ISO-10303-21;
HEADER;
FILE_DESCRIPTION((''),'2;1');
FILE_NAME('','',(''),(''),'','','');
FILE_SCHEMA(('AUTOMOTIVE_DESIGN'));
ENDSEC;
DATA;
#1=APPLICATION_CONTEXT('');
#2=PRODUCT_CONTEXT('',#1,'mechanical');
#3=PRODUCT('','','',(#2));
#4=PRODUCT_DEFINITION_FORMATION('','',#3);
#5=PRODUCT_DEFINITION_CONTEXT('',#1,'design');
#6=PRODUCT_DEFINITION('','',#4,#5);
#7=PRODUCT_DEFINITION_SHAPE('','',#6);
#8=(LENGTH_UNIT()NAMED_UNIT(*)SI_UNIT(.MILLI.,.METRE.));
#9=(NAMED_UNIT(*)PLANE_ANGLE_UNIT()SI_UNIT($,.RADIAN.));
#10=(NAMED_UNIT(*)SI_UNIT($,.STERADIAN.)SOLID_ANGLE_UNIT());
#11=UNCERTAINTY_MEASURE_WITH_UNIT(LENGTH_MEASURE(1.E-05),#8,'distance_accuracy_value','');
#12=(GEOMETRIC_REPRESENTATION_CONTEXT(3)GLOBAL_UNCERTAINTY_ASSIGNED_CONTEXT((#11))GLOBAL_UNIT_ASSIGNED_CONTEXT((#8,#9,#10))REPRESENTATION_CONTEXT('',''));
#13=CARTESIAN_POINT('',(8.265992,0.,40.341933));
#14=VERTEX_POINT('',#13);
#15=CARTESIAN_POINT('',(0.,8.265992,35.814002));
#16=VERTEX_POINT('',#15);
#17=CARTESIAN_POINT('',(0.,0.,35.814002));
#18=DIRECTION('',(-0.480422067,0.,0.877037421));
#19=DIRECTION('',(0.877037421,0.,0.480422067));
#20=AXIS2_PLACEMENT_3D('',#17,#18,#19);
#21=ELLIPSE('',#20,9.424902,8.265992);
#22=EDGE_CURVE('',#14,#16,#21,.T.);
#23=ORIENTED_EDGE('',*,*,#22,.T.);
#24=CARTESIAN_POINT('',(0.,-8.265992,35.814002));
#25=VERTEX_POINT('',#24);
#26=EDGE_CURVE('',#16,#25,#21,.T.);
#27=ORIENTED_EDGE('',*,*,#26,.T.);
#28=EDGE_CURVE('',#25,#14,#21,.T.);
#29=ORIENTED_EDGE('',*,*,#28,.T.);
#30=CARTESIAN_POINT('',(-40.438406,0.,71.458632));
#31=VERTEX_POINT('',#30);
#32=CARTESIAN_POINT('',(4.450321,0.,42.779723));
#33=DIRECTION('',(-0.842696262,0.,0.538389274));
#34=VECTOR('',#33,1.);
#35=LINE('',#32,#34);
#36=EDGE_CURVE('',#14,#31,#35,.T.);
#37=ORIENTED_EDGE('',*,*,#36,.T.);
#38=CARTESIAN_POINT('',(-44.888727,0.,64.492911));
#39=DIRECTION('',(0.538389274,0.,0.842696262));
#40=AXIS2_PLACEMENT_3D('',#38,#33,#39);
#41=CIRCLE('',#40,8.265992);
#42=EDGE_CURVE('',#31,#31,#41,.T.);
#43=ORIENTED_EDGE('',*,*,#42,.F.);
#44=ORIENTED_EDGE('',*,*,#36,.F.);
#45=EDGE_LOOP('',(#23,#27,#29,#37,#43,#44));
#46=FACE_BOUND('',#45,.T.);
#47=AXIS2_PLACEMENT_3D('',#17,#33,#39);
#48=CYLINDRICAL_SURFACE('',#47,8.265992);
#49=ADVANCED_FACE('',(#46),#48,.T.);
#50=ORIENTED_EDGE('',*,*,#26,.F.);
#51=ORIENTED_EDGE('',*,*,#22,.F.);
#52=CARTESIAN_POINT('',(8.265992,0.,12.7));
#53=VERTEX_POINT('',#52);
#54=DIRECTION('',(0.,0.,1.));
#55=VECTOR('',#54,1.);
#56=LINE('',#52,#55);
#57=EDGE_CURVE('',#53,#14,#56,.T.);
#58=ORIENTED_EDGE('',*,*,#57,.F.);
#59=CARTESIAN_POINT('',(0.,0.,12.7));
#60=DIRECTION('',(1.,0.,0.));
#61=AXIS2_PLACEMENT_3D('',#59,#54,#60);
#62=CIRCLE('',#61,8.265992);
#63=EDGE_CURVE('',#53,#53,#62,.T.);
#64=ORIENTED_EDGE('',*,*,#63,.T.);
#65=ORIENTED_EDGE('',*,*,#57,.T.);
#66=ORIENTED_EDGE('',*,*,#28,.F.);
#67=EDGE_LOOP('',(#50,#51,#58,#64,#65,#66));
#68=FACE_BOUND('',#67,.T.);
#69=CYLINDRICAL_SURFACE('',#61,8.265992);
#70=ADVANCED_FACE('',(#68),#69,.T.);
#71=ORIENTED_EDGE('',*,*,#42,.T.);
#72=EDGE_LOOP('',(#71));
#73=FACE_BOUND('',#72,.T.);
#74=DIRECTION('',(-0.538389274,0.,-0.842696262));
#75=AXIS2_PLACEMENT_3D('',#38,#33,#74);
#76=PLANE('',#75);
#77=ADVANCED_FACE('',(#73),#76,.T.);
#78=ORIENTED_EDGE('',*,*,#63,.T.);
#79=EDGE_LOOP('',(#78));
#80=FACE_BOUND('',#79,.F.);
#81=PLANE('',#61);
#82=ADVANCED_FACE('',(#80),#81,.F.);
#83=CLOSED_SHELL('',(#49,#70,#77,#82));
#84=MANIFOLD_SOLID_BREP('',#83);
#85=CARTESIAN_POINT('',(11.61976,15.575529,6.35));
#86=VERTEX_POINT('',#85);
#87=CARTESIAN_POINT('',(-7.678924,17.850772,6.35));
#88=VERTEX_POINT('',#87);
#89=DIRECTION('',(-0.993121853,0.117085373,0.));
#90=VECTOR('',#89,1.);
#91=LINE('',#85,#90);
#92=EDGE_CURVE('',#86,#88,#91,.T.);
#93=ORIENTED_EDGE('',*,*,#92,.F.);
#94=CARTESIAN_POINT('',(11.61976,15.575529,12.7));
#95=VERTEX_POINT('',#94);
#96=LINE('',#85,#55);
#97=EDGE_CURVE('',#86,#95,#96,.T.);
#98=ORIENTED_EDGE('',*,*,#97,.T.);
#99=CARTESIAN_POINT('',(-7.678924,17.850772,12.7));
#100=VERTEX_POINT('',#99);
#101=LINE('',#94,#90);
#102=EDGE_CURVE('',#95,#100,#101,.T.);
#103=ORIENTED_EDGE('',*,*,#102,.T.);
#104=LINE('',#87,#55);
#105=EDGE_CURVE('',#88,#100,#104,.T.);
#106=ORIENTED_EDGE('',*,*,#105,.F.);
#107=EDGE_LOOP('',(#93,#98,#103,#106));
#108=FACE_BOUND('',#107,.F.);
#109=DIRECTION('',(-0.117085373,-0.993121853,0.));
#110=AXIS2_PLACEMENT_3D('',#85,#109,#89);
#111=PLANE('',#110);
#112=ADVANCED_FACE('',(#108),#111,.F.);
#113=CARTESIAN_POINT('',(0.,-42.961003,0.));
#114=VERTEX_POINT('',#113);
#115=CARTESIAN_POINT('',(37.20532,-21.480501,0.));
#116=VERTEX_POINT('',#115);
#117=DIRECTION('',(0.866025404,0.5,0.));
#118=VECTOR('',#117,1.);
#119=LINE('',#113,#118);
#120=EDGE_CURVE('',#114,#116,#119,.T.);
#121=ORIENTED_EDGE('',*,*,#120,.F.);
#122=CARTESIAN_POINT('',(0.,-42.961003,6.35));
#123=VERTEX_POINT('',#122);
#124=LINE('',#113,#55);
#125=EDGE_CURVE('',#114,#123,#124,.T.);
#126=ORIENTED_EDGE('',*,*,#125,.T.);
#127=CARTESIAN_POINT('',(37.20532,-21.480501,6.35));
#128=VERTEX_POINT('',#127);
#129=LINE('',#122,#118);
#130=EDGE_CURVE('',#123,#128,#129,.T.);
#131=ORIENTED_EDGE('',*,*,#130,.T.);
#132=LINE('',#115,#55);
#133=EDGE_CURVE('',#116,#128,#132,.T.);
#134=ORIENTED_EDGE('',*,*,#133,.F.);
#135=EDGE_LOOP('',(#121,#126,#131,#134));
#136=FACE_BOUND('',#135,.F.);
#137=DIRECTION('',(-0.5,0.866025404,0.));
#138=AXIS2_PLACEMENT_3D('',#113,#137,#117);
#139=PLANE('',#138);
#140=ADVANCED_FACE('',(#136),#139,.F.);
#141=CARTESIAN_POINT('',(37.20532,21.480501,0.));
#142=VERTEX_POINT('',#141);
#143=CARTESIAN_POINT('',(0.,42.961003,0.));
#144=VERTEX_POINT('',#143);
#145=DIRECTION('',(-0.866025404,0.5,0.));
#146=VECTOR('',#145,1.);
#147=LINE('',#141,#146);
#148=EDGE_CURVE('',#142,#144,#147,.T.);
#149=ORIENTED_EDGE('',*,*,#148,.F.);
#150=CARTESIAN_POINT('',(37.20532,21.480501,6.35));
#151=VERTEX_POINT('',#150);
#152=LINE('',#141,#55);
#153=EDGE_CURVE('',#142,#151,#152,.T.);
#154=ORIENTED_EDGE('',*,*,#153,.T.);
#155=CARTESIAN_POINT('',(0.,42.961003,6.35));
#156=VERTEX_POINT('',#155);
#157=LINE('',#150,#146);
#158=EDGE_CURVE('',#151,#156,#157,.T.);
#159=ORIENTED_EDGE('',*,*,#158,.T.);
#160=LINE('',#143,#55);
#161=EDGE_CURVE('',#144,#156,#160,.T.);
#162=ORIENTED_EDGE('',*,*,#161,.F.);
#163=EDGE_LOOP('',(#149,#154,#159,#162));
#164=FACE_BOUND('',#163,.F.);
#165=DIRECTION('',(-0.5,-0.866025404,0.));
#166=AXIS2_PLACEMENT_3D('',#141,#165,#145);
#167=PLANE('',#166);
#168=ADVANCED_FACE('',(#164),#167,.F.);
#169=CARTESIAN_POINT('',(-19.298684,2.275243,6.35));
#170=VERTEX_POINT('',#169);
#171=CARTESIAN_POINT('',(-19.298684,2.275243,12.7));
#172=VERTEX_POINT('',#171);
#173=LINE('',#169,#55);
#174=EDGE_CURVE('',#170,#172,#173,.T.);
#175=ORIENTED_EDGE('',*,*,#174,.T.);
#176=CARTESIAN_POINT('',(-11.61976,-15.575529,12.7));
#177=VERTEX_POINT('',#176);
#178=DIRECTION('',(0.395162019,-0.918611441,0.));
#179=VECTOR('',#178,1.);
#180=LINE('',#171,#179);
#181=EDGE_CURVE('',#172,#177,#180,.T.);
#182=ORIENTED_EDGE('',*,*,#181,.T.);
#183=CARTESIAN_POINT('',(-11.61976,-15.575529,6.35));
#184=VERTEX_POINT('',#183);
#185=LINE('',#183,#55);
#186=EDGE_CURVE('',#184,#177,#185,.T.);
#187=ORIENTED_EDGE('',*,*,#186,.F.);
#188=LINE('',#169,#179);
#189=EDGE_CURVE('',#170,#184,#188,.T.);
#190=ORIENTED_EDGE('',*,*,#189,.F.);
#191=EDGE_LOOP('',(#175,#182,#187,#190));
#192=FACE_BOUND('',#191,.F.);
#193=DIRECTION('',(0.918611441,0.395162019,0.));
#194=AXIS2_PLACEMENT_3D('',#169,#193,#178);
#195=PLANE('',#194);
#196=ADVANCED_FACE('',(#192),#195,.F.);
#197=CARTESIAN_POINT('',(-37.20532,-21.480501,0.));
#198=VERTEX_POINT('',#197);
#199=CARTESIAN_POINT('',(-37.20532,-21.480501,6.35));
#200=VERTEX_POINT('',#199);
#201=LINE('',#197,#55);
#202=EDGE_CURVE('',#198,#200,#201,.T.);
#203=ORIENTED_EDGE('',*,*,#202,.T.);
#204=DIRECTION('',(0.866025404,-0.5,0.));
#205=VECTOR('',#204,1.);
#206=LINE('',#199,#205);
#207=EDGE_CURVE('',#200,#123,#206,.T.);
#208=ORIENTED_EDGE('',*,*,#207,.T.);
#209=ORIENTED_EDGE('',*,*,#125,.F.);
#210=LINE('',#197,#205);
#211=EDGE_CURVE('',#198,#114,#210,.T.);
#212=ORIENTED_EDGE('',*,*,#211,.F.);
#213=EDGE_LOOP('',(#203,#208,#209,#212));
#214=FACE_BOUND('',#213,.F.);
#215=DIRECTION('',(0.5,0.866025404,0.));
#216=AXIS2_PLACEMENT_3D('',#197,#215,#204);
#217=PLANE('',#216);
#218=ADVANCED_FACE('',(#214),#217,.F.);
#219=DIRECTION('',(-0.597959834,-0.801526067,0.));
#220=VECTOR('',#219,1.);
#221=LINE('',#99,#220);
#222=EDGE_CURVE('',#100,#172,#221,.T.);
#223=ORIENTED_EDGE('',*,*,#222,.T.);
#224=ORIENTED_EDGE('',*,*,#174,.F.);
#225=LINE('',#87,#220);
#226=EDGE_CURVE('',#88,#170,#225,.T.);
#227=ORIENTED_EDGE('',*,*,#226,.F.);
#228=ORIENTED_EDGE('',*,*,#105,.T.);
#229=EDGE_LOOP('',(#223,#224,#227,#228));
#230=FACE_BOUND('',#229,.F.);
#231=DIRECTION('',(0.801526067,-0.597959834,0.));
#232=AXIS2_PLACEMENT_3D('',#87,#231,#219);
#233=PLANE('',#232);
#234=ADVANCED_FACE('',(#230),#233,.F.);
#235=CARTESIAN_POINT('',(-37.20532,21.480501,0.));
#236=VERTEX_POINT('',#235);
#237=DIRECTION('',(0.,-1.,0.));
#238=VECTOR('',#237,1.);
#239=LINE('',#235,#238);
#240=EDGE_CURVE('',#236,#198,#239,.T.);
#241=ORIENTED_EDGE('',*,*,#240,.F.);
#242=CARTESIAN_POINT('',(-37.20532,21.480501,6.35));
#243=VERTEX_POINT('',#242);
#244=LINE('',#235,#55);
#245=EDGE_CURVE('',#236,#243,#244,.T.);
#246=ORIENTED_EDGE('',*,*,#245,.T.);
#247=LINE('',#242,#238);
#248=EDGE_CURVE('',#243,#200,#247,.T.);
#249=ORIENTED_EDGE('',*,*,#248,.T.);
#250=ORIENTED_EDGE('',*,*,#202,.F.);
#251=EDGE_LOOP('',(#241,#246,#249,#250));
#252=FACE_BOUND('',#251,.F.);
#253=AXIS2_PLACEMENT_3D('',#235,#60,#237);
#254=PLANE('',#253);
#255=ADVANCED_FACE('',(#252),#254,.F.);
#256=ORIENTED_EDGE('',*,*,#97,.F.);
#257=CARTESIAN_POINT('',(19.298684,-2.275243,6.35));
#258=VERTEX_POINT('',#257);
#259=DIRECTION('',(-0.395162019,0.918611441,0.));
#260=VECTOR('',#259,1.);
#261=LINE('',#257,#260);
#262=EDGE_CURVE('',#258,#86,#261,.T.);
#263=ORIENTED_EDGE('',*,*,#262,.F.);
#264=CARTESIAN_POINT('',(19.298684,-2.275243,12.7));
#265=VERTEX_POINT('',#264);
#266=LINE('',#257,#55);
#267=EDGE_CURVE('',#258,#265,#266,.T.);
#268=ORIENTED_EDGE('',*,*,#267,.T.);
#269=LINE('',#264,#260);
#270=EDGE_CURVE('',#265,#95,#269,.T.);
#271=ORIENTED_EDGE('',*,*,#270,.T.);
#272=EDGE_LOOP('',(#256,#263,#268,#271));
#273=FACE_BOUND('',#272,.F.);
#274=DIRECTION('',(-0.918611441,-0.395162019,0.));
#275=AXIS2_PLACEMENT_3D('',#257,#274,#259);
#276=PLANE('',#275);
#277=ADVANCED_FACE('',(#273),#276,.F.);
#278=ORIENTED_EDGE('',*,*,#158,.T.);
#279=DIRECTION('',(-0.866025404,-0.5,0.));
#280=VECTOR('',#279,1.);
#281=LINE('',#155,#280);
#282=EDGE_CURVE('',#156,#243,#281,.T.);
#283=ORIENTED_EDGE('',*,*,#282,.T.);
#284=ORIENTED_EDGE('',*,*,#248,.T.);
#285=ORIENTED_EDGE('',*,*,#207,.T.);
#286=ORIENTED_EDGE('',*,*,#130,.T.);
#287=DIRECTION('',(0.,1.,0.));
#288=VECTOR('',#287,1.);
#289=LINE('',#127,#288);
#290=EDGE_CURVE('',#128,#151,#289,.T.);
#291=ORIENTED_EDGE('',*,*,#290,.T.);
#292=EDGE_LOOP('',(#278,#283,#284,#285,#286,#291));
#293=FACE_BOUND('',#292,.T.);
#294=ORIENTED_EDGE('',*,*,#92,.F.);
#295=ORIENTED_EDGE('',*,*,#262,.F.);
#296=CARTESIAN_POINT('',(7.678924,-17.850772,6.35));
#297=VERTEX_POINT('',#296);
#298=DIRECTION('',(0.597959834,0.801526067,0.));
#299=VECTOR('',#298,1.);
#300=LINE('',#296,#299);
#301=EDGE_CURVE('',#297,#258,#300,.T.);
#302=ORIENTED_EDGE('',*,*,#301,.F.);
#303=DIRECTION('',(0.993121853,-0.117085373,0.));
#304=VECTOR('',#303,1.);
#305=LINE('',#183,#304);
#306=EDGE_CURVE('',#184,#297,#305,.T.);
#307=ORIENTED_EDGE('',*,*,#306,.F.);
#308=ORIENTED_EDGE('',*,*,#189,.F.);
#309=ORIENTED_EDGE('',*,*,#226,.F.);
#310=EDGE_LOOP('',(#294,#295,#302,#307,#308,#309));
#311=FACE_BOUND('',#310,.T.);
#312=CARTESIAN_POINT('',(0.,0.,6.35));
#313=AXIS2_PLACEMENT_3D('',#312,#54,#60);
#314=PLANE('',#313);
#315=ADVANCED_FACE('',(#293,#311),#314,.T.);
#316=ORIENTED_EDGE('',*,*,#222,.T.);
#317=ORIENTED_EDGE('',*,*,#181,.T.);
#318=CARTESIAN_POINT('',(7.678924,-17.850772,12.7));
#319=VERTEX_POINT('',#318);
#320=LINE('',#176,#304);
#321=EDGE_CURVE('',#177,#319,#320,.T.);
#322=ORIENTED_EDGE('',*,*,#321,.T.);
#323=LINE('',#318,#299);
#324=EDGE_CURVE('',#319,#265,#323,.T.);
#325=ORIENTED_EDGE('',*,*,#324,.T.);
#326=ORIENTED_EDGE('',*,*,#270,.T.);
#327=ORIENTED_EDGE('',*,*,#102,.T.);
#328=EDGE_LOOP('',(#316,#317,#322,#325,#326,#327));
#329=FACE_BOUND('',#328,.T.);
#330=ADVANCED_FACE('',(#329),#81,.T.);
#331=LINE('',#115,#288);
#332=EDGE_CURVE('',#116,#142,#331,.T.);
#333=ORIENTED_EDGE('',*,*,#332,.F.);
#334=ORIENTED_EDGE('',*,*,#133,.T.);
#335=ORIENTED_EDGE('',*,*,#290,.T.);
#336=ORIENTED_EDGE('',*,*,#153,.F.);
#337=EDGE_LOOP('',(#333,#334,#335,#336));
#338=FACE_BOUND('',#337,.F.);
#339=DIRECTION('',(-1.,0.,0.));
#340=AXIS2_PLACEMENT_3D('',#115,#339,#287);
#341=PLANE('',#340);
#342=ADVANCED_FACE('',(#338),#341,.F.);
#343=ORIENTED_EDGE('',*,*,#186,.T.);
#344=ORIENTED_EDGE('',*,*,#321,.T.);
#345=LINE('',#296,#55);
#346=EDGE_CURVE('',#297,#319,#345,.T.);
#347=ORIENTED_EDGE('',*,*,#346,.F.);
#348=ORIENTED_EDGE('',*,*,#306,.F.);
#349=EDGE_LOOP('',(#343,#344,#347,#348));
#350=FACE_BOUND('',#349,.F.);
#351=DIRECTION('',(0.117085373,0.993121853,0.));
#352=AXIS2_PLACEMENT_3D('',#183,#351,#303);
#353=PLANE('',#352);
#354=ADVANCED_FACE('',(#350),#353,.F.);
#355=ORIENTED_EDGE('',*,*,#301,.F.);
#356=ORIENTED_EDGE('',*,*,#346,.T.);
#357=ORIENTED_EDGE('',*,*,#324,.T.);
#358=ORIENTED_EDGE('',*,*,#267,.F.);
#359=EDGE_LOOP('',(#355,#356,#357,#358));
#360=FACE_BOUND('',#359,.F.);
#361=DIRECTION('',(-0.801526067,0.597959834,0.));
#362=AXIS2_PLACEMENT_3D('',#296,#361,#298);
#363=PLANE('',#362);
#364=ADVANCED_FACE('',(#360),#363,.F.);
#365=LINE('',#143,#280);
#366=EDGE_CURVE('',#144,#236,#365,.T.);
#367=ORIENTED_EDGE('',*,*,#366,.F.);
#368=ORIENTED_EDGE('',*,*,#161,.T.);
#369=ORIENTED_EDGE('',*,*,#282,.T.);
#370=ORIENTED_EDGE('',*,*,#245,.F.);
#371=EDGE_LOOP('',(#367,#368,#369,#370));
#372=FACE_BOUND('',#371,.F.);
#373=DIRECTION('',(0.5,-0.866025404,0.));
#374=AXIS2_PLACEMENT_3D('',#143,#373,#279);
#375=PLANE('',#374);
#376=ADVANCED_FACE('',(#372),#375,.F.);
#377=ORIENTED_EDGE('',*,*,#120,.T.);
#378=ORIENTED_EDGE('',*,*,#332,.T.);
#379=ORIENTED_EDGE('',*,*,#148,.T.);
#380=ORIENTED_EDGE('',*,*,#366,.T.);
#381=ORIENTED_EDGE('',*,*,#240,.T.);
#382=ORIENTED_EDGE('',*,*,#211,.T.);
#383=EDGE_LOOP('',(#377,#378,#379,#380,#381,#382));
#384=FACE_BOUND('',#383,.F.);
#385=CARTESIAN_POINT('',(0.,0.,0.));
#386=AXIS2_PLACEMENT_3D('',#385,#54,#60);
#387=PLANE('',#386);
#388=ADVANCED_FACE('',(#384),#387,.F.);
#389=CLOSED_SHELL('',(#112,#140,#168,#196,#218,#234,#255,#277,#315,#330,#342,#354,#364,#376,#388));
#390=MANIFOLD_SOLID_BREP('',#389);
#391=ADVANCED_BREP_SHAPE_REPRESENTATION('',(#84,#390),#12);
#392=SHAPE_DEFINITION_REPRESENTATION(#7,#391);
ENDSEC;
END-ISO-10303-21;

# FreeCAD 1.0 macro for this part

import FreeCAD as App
import Part
import Sketcher
from FreeCAD import Vector
Q = App.Units.Quantity


def add_polygon(sketch, points):
    """Adds a closed chain of lines whose ends are joined by coincident constraints."""
    first, n = sketch.GeometryCount, len(points)
    for a, b in zip(points, points[1:] + points[:1]):
        sketch.addGeometry(Part.LineSegment(App.Vector(*a, 0), App.Vector(*b, 0)), False)
    for i in range(n):
        sketch.addConstraint(Sketcher.Constraint("Coincident", first + i, 2, first + (i + 1) % n, 1))

doc = App.newDocument("Part")
body = doc.addObject("PartDesign::Body", "Body")

# Sketch on XY plane
sketch1 = body.newObject("Sketcher::SketchObject", "Sketch")
sketch1.AttachmentSupport = (doc.getObject("XY_Plane"), [""])
sketch1.MapMode = "FlatFace"
add_polygon(sketch1, [(37, -21), (37, 21), (0, 43), (-37, 21), (-37, -21), (0, -43)])  # lines 0-5
sketch1.addConstraint([
    Sketcher.Constraint("Vertical", 0),
    Sketcher.Constraint("Vertical", 3),
    Sketcher.Constraint("Symmetric", 0, 2, 3, 2, -1, 1),
    Sketcher.Constraint("Symmetric", 1, 2, 4, 2, -1, 1),
    Sketcher.Constraint("PointOnObject", 1, 2, -2),
    Sketcher.Constraint("Parallel", 2, 5),
    Sketcher.Constraint("Horizontal", 0, 2, 2, 2),
    Sketcher.Constraint("Angle", 1, Q("150 deg")),
    Sketcher.Constraint("DistanceY", -1, 1, 0, 2, Q("21.480501 mm")),
    Sketcher.Constraint("DistanceY", 0, 2, 1, 2, Q("21.480501 mm")),
])
pad1 = body.newObject("PartDesign::Pad", "Pad")
pad1.Profile = sketch1
pad1.Length = Q("0.25 in")

# Sketch on XY plane
sketch2 = body.newObject("Sketcher::SketchObject", "Sketch001")
sketch2.AttachmentSupport = (doc.getObject("XY_Plane"), [""])
sketch2.MapMode = "FlatFace"
sketch2.AttachmentOffset = App.Placement(Vector(0, 0, 0.25 * 25.4), App.Rotation())
add_polygon(sketch2, [(19, -2), (12, 16), (-8, 18), (-19, 2), (-12, -16), (8, -18)])  # lines 0-5
sketch2.addConstraint([
    Sketcher.Constraint("Symmetric", 0, 2, 3, 2, -1, 1),
    Sketcher.Constraint("Symmetric", 1, 2, 4, 2, -1, 1),
    Sketcher.Constraint("Symmetric", 2, 2, 5, 2, -1, 1),
    Sketcher.Constraint("Equal", 0, 1),
    Sketcher.Constraint("Equal", 1, 2),
    Sketcher.Constraint("DistanceY", 3, 2, 1, 2, Q("33.4263 mm")),
    Sketcher.Constraint("DistanceX", -1, 1, 0, 2, Q("11.61976 mm")),
    Sketcher.Constraint("DistanceY", -1, 1, 0, 2, Q("15.575529 mm")),
    Sketcher.Constraint("DistanceX", 2, 2, 1, 2, Q("11.61976 mm")),
])
pad2 = body.newObject("PartDesign::Pad", "Pad001")
pad2.Profile = sketch2
pad2.Length = Q("0.25 in")
body2 = doc.addObject("PartDesign::Body", "Body001")

# Sketch on XY plane
sketch3 = body2.newObject("Sketcher::SketchObject", "Sketch002")
sketch3.AttachmentSupport = (doc.getObject("XY_Plane001"), [""])
sketch3.MapMode = "FlatFace"
sketch3.AttachmentOffset = App.Placement(Vector(0, 0, 0.5 * 25.4), App.Rotation())
sketch3.addGeometry(Part.Circle(Vector(0, 0, 0), Vector(0, 0, 1), 8), False)
sketch3.addConstraint([
    Sketcher.Constraint("Coincident", 0, 3, -1, 1),
    Sketcher.Constraint("Diameter", 0, Q("16.531984 mm")),
])

# Sketch on XZ plane
sketch4 = body2.newObject("Sketcher::SketchObject", "Sketch003")
sketch4.AttachmentSupport = (doc.getObject("XZ_Plane001"), [""])
sketch4.MapMode = "FlatFace"
sketch4.addGeometry([
    Part.LineSegment(Vector(0, 13, 0), Vector(0, 36, 0)),
    Part.LineSegment(Vector(0, 36, 0), Vector(-45, 64, 0)),
], False)
sketch4.addConstraint([
    Sketcher.Constraint("Coincident", 0, 2, 1, 1),
    Sketcher.Constraint("Vertical", 0),
    Sketcher.Constraint("PointOnObject", 0, 1, -2),
    Sketcher.Constraint("DistanceY", 0, 1, 0, 2, Q("0.9100001 in")),
    Sketcher.Constraint("DistanceY", -1, 1, 0, 1, Q("0.5 in")),
    Sketcher.Constraint("Distance", 1, Q("53.26798 mm")),
    Sketcher.Constraint("DistanceY", -1, 1, 1, 2, Q("64.492911 mm")),
])
doc.recompute()

additivepipe = body2.newObject("PartDesign::AdditivePipe", "AdditivePipe")
additivepipe.Profile = sketch3
additivepipe.Spine = (sketch4, ["Edge1", "Edge2"])
additivepipe.Transition = "Right corner"

doc.recompute()
